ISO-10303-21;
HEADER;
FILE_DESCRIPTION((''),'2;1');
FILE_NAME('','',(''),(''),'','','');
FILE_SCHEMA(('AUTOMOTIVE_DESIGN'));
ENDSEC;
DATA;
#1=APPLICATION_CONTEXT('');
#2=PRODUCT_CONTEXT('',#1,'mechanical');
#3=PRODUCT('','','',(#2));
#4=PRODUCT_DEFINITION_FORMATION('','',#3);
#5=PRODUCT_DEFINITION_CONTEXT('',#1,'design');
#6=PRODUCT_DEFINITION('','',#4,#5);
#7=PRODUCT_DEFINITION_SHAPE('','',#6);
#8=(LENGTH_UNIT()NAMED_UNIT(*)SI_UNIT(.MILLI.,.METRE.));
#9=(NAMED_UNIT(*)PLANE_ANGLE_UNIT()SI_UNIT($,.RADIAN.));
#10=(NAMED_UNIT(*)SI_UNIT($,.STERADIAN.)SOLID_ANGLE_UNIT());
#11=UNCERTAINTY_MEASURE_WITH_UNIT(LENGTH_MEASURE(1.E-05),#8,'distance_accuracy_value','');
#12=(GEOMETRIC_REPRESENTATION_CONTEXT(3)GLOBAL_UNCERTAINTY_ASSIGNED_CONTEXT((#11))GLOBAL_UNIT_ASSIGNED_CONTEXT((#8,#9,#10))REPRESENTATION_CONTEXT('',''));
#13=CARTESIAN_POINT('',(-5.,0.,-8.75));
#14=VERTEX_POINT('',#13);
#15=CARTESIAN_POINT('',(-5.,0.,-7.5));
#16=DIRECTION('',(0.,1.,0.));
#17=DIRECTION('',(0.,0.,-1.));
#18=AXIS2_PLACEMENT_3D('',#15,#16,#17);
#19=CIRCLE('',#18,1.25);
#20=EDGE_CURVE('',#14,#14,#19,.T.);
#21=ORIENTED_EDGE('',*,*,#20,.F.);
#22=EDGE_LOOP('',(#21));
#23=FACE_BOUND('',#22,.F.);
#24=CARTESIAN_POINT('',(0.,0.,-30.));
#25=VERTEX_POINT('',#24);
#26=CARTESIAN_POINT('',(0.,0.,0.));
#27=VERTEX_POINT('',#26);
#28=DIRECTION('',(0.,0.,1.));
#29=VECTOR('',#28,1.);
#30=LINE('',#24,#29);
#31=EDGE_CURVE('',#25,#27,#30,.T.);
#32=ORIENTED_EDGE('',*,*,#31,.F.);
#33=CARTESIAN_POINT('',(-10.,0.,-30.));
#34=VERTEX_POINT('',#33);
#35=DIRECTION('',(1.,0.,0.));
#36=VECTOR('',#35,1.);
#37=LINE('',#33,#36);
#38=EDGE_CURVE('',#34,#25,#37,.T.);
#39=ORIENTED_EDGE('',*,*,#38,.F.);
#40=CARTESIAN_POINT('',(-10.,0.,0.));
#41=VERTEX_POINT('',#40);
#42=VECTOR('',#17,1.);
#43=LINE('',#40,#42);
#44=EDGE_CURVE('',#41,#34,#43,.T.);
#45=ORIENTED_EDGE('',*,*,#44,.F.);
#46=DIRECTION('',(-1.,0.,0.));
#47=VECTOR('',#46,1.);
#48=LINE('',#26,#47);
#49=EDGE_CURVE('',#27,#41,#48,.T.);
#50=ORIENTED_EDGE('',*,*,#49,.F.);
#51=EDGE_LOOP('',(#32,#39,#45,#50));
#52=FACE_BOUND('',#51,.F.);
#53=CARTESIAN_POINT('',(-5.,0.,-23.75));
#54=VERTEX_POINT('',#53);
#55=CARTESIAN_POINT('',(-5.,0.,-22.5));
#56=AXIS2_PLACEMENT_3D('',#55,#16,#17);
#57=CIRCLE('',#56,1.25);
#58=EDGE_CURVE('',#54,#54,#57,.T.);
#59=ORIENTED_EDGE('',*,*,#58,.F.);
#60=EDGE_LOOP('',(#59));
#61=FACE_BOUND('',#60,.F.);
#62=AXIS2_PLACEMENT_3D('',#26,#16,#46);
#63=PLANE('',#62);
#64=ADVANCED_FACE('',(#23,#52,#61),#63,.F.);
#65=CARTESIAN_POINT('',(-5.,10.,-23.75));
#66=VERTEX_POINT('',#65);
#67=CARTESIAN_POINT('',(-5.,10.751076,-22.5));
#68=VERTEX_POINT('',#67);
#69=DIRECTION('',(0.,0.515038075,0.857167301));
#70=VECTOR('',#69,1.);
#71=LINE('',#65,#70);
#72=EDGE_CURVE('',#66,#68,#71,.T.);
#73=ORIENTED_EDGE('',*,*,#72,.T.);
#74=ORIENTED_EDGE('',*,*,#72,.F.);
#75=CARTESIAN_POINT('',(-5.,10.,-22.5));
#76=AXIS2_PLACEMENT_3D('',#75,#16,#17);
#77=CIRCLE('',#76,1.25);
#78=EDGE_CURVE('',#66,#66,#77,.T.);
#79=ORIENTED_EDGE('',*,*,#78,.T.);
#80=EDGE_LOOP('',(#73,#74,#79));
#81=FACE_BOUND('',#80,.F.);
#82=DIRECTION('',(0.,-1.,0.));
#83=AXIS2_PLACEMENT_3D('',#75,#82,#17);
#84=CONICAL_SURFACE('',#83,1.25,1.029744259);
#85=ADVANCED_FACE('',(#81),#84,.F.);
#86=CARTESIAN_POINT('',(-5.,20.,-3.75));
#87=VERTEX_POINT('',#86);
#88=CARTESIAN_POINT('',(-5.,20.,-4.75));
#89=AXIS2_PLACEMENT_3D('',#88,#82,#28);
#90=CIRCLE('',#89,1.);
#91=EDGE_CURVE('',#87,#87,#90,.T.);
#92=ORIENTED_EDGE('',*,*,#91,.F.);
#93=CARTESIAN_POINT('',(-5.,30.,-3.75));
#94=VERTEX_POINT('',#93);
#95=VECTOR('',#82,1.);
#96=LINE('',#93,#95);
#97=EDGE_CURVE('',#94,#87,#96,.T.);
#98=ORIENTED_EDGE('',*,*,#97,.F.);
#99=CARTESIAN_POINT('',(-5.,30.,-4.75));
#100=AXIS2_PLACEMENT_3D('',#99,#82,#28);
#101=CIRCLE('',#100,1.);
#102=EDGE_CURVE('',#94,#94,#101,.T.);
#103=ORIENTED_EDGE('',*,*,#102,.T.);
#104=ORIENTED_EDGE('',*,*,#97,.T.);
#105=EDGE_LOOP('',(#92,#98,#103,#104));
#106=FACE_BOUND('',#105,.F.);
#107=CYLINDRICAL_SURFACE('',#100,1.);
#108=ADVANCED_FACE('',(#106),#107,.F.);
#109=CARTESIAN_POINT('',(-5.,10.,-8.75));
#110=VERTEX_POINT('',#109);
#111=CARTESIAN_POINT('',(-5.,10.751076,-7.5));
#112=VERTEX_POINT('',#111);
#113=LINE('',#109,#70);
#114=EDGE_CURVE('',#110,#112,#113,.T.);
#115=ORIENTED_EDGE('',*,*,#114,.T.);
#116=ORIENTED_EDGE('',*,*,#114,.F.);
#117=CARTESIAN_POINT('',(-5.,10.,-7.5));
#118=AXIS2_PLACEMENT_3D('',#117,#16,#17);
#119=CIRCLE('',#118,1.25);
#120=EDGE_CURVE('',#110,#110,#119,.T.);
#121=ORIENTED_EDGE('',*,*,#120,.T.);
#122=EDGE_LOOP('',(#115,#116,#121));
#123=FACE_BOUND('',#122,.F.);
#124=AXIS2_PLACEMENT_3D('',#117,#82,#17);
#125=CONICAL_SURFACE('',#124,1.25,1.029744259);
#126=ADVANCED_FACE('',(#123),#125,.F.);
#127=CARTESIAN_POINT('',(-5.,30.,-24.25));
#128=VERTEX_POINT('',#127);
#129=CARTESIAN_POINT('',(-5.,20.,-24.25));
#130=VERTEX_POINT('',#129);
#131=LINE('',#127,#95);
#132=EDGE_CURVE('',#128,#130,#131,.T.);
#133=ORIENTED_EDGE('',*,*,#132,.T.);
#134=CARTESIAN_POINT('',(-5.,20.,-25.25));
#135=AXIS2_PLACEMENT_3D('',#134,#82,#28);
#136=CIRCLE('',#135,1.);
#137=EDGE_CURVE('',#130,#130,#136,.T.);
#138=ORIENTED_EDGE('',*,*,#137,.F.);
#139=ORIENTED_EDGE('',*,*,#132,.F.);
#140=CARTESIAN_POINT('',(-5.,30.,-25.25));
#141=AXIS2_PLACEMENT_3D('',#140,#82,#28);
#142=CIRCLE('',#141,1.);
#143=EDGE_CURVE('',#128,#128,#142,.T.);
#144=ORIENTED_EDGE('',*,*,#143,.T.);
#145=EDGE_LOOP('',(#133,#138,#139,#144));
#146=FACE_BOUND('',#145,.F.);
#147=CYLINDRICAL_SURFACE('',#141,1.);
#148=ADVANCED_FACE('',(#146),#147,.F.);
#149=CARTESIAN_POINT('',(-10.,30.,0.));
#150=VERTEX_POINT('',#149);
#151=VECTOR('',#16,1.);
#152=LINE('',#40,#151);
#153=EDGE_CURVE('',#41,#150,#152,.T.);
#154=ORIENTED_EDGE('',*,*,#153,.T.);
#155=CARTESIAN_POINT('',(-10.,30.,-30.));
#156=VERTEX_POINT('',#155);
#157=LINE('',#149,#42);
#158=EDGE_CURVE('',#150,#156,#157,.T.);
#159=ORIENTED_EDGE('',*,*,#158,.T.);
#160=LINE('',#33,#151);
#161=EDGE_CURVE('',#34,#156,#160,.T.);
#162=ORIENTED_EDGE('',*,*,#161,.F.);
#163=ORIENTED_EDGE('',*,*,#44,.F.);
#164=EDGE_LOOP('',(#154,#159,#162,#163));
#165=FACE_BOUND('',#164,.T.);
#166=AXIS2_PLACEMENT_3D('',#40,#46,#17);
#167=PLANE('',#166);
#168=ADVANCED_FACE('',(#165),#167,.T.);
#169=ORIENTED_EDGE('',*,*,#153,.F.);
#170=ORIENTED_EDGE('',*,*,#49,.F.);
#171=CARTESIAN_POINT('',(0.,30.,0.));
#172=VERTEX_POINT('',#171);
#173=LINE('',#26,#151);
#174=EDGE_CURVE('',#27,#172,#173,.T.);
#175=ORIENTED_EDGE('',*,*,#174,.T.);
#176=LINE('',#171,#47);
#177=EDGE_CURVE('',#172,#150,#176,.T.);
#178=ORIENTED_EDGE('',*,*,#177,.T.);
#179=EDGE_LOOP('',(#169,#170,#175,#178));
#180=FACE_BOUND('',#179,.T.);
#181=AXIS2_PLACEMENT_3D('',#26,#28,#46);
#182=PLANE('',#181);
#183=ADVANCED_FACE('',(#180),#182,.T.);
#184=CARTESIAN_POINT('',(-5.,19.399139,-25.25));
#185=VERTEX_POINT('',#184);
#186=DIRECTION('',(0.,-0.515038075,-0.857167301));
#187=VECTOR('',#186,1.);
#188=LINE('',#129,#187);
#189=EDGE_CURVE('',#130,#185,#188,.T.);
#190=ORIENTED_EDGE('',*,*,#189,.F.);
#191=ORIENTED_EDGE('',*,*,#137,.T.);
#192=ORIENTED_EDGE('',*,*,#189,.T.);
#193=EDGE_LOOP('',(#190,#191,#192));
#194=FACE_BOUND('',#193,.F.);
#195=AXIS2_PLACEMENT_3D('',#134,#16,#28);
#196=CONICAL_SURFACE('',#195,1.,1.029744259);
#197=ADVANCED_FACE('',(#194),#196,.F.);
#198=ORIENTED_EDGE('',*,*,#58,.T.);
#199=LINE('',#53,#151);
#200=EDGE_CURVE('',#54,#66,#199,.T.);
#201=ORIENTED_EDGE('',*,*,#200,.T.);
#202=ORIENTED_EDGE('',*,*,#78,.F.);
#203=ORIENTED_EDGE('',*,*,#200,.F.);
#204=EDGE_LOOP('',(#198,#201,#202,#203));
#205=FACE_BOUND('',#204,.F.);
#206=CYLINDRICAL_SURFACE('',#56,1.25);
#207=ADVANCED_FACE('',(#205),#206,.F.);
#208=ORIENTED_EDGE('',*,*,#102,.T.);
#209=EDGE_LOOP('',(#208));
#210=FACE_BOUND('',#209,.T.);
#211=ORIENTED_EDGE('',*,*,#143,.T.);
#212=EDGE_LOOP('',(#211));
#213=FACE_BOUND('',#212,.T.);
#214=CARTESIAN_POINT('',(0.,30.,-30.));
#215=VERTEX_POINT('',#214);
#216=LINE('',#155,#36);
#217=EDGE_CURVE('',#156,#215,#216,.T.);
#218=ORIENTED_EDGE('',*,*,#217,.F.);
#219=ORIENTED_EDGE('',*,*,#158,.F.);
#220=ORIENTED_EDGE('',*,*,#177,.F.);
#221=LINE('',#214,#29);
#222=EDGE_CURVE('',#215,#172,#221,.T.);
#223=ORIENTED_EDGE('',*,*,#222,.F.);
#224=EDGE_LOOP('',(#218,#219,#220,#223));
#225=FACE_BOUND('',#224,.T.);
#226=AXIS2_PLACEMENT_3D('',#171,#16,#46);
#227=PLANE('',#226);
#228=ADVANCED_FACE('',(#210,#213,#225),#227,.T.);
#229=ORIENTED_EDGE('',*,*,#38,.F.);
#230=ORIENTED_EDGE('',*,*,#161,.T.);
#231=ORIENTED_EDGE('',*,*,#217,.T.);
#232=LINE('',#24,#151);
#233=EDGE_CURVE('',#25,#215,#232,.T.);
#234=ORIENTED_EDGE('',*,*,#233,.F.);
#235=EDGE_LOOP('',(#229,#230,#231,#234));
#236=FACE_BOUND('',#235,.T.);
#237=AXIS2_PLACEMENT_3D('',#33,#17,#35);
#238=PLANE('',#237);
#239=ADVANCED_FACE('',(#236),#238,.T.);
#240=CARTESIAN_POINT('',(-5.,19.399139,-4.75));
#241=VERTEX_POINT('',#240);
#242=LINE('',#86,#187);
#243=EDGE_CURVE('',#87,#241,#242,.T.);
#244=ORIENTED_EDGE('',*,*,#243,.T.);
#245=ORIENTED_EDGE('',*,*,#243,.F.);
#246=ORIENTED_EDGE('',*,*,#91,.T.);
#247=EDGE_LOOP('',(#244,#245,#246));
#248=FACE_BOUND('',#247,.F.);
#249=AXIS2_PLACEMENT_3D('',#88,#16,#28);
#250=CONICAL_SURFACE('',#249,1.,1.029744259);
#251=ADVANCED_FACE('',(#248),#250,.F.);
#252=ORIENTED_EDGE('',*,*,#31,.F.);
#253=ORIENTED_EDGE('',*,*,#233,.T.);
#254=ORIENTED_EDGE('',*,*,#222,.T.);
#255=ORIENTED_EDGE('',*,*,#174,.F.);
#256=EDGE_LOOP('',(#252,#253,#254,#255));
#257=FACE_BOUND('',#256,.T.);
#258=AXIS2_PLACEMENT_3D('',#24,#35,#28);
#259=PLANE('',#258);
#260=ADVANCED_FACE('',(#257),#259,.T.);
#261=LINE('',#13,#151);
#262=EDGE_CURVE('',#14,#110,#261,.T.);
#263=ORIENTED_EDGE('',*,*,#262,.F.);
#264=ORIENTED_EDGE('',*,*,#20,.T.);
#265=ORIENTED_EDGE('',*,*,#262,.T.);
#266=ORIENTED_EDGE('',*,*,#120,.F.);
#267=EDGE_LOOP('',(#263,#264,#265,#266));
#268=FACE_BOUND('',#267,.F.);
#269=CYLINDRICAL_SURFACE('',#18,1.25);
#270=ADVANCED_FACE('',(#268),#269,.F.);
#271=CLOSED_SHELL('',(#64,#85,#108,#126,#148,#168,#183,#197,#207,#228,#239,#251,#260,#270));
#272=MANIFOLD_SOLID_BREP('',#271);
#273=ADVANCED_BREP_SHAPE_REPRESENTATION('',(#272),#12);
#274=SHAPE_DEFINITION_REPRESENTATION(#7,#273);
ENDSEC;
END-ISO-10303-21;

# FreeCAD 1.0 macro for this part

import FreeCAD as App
import Part
import Sketcher

V = App.Vector

doc = App.newDocument("Part")
body = doc.addObject("PartDesign::Body", "Body")

sketch1 = body.newObject("Sketcher::SketchObject", "Sketch")
sketch1.AttachmentSupport = (doc.getObject("XZ_Plane"), [""])
sketch1.MapMode = "FlatFace"
sketch1.addGeometry([
    Part.LineSegment(V(-10, 0, 0), V(0, 0, 0)),
    Part.LineSegment(V(0, 0, 0), V(0, -30, 0)),
    Part.LineSegment(V(0, -30, 0), V(-10, -30, 0)),
    Part.LineSegment(V(-10, -30, 0), V(-10, 0, 0)),
], False)
sketch1.addConstraint([
    Sketcher.Constraint("Coincident", 0, 2, 1, 1),
    Sketcher.Constraint("Coincident", 1, 2, 2, 1),
    Sketcher.Constraint("Coincident", 2, 2, 3, 1),
    Sketcher.Constraint("Coincident", 3, 2, 0, 1),
    Sketcher.Constraint("Horizontal", 0),
    Sketcher.Constraint("Vertical", 1),
    Sketcher.Constraint("Horizontal", 2),
    Sketcher.Constraint("Vertical", 3),
    Sketcher.Constraint("Coincident", 0, 2, -1, 1),
    Sketcher.Constraint("DistanceX", 0, 1, 0, 2, 10.0),
    Sketcher.Constraint("DistanceY", 1, 2, 1, 1, 30.0),
])
pad1 = body.newObject("PartDesign::Pad", "Pad")
pad1.Profile = sketch1
pad1.Length = 30
pad1.Reversed = True

sketch2 = body.newObject("Sketcher::SketchObject", "Sketch001")
sketch2.AttachmentSupport = (doc.getObject("XZ_Plane"), [""])
sketch2.MapMode = "FlatFace"
sketch2.AttachmentOffset = App.Placement(V(0, 0, -30), App.Rotation())
sketch2.addGeometry([
    Part.Circle(V(-5, -4.75, 0), V(0, 0, 1), 1),
    Part.Circle(V(-5, -25.25, 0), V(0, 0, 1), 1),
], False)
sketch2.addConstraint([
    Sketcher.Constraint("Equal", 0, 1),
    Sketcher.Constraint("Vertical", 0, 3, 1, 3),
    Sketcher.Constraint("Diameter", 0, 2.0),
    Sketcher.Constraint("DistanceX", 0, 3, -1, 1, 5.0),
    Sketcher.Constraint("DistanceY", 1, 3, 0, 3, 20.5),
    Sketcher.Constraint("DistanceY", 0, 3, -1, 1, 4.75),
])
doc.recompute()
hole = body.newObject("PartDesign::Hole", "Hole")
hole.Profile = sketch2
hole.ThreadType = "None"
hole.Diameter = 2
hole.DepthType = "Dimension"
hole.Depth = 10
hole.DrillPoint = "Angled"
hole.DrillPointAngle = 118
hole.Reversed = True

sketch3 = body.newObject("Sketcher::SketchObject", "Sketch002")
sketch3.AttachmentSupport = (doc.getObject("XZ_Plane"), [""])
sketch3.MapMode = "FlatFace"
sketch3.addGeometry([
    Part.Circle(V(-5, -22.5, 0), V(0, 0, 1), 1.25),
    Part.Circle(V(-5, -7.5, 0), V(0, 0, 1), 1.25),
], False)
sketch3.addConstraint([
    Sketcher.Constraint("Equal", 0, 1),
    Sketcher.Constraint("Vertical", 0, 3, 1, 3),
    Sketcher.Constraint("Diameter", 0, 2.5),
    Sketcher.Constraint("DistanceX", 0, 3, -1, 1, 5.0),
    Sketcher.Constraint("DistanceY", 0, 3, 1, 3, 15.0),
    Sketcher.Constraint("DistanceY", 0, 3, -1, 1, 22.5),
])
doc.recompute()
hole2 = body.newObject("PartDesign::Hole", "Hole001")
hole2.Profile = sketch3
hole2.ThreadType = "None"
hole2.Diameter = 2.5
hole2.DepthType = "Dimension"
hole2.Depth = 10
hole2.DrillPoint = "Angled"
hole2.DrillPointAngle = 118

doc.recompute()
